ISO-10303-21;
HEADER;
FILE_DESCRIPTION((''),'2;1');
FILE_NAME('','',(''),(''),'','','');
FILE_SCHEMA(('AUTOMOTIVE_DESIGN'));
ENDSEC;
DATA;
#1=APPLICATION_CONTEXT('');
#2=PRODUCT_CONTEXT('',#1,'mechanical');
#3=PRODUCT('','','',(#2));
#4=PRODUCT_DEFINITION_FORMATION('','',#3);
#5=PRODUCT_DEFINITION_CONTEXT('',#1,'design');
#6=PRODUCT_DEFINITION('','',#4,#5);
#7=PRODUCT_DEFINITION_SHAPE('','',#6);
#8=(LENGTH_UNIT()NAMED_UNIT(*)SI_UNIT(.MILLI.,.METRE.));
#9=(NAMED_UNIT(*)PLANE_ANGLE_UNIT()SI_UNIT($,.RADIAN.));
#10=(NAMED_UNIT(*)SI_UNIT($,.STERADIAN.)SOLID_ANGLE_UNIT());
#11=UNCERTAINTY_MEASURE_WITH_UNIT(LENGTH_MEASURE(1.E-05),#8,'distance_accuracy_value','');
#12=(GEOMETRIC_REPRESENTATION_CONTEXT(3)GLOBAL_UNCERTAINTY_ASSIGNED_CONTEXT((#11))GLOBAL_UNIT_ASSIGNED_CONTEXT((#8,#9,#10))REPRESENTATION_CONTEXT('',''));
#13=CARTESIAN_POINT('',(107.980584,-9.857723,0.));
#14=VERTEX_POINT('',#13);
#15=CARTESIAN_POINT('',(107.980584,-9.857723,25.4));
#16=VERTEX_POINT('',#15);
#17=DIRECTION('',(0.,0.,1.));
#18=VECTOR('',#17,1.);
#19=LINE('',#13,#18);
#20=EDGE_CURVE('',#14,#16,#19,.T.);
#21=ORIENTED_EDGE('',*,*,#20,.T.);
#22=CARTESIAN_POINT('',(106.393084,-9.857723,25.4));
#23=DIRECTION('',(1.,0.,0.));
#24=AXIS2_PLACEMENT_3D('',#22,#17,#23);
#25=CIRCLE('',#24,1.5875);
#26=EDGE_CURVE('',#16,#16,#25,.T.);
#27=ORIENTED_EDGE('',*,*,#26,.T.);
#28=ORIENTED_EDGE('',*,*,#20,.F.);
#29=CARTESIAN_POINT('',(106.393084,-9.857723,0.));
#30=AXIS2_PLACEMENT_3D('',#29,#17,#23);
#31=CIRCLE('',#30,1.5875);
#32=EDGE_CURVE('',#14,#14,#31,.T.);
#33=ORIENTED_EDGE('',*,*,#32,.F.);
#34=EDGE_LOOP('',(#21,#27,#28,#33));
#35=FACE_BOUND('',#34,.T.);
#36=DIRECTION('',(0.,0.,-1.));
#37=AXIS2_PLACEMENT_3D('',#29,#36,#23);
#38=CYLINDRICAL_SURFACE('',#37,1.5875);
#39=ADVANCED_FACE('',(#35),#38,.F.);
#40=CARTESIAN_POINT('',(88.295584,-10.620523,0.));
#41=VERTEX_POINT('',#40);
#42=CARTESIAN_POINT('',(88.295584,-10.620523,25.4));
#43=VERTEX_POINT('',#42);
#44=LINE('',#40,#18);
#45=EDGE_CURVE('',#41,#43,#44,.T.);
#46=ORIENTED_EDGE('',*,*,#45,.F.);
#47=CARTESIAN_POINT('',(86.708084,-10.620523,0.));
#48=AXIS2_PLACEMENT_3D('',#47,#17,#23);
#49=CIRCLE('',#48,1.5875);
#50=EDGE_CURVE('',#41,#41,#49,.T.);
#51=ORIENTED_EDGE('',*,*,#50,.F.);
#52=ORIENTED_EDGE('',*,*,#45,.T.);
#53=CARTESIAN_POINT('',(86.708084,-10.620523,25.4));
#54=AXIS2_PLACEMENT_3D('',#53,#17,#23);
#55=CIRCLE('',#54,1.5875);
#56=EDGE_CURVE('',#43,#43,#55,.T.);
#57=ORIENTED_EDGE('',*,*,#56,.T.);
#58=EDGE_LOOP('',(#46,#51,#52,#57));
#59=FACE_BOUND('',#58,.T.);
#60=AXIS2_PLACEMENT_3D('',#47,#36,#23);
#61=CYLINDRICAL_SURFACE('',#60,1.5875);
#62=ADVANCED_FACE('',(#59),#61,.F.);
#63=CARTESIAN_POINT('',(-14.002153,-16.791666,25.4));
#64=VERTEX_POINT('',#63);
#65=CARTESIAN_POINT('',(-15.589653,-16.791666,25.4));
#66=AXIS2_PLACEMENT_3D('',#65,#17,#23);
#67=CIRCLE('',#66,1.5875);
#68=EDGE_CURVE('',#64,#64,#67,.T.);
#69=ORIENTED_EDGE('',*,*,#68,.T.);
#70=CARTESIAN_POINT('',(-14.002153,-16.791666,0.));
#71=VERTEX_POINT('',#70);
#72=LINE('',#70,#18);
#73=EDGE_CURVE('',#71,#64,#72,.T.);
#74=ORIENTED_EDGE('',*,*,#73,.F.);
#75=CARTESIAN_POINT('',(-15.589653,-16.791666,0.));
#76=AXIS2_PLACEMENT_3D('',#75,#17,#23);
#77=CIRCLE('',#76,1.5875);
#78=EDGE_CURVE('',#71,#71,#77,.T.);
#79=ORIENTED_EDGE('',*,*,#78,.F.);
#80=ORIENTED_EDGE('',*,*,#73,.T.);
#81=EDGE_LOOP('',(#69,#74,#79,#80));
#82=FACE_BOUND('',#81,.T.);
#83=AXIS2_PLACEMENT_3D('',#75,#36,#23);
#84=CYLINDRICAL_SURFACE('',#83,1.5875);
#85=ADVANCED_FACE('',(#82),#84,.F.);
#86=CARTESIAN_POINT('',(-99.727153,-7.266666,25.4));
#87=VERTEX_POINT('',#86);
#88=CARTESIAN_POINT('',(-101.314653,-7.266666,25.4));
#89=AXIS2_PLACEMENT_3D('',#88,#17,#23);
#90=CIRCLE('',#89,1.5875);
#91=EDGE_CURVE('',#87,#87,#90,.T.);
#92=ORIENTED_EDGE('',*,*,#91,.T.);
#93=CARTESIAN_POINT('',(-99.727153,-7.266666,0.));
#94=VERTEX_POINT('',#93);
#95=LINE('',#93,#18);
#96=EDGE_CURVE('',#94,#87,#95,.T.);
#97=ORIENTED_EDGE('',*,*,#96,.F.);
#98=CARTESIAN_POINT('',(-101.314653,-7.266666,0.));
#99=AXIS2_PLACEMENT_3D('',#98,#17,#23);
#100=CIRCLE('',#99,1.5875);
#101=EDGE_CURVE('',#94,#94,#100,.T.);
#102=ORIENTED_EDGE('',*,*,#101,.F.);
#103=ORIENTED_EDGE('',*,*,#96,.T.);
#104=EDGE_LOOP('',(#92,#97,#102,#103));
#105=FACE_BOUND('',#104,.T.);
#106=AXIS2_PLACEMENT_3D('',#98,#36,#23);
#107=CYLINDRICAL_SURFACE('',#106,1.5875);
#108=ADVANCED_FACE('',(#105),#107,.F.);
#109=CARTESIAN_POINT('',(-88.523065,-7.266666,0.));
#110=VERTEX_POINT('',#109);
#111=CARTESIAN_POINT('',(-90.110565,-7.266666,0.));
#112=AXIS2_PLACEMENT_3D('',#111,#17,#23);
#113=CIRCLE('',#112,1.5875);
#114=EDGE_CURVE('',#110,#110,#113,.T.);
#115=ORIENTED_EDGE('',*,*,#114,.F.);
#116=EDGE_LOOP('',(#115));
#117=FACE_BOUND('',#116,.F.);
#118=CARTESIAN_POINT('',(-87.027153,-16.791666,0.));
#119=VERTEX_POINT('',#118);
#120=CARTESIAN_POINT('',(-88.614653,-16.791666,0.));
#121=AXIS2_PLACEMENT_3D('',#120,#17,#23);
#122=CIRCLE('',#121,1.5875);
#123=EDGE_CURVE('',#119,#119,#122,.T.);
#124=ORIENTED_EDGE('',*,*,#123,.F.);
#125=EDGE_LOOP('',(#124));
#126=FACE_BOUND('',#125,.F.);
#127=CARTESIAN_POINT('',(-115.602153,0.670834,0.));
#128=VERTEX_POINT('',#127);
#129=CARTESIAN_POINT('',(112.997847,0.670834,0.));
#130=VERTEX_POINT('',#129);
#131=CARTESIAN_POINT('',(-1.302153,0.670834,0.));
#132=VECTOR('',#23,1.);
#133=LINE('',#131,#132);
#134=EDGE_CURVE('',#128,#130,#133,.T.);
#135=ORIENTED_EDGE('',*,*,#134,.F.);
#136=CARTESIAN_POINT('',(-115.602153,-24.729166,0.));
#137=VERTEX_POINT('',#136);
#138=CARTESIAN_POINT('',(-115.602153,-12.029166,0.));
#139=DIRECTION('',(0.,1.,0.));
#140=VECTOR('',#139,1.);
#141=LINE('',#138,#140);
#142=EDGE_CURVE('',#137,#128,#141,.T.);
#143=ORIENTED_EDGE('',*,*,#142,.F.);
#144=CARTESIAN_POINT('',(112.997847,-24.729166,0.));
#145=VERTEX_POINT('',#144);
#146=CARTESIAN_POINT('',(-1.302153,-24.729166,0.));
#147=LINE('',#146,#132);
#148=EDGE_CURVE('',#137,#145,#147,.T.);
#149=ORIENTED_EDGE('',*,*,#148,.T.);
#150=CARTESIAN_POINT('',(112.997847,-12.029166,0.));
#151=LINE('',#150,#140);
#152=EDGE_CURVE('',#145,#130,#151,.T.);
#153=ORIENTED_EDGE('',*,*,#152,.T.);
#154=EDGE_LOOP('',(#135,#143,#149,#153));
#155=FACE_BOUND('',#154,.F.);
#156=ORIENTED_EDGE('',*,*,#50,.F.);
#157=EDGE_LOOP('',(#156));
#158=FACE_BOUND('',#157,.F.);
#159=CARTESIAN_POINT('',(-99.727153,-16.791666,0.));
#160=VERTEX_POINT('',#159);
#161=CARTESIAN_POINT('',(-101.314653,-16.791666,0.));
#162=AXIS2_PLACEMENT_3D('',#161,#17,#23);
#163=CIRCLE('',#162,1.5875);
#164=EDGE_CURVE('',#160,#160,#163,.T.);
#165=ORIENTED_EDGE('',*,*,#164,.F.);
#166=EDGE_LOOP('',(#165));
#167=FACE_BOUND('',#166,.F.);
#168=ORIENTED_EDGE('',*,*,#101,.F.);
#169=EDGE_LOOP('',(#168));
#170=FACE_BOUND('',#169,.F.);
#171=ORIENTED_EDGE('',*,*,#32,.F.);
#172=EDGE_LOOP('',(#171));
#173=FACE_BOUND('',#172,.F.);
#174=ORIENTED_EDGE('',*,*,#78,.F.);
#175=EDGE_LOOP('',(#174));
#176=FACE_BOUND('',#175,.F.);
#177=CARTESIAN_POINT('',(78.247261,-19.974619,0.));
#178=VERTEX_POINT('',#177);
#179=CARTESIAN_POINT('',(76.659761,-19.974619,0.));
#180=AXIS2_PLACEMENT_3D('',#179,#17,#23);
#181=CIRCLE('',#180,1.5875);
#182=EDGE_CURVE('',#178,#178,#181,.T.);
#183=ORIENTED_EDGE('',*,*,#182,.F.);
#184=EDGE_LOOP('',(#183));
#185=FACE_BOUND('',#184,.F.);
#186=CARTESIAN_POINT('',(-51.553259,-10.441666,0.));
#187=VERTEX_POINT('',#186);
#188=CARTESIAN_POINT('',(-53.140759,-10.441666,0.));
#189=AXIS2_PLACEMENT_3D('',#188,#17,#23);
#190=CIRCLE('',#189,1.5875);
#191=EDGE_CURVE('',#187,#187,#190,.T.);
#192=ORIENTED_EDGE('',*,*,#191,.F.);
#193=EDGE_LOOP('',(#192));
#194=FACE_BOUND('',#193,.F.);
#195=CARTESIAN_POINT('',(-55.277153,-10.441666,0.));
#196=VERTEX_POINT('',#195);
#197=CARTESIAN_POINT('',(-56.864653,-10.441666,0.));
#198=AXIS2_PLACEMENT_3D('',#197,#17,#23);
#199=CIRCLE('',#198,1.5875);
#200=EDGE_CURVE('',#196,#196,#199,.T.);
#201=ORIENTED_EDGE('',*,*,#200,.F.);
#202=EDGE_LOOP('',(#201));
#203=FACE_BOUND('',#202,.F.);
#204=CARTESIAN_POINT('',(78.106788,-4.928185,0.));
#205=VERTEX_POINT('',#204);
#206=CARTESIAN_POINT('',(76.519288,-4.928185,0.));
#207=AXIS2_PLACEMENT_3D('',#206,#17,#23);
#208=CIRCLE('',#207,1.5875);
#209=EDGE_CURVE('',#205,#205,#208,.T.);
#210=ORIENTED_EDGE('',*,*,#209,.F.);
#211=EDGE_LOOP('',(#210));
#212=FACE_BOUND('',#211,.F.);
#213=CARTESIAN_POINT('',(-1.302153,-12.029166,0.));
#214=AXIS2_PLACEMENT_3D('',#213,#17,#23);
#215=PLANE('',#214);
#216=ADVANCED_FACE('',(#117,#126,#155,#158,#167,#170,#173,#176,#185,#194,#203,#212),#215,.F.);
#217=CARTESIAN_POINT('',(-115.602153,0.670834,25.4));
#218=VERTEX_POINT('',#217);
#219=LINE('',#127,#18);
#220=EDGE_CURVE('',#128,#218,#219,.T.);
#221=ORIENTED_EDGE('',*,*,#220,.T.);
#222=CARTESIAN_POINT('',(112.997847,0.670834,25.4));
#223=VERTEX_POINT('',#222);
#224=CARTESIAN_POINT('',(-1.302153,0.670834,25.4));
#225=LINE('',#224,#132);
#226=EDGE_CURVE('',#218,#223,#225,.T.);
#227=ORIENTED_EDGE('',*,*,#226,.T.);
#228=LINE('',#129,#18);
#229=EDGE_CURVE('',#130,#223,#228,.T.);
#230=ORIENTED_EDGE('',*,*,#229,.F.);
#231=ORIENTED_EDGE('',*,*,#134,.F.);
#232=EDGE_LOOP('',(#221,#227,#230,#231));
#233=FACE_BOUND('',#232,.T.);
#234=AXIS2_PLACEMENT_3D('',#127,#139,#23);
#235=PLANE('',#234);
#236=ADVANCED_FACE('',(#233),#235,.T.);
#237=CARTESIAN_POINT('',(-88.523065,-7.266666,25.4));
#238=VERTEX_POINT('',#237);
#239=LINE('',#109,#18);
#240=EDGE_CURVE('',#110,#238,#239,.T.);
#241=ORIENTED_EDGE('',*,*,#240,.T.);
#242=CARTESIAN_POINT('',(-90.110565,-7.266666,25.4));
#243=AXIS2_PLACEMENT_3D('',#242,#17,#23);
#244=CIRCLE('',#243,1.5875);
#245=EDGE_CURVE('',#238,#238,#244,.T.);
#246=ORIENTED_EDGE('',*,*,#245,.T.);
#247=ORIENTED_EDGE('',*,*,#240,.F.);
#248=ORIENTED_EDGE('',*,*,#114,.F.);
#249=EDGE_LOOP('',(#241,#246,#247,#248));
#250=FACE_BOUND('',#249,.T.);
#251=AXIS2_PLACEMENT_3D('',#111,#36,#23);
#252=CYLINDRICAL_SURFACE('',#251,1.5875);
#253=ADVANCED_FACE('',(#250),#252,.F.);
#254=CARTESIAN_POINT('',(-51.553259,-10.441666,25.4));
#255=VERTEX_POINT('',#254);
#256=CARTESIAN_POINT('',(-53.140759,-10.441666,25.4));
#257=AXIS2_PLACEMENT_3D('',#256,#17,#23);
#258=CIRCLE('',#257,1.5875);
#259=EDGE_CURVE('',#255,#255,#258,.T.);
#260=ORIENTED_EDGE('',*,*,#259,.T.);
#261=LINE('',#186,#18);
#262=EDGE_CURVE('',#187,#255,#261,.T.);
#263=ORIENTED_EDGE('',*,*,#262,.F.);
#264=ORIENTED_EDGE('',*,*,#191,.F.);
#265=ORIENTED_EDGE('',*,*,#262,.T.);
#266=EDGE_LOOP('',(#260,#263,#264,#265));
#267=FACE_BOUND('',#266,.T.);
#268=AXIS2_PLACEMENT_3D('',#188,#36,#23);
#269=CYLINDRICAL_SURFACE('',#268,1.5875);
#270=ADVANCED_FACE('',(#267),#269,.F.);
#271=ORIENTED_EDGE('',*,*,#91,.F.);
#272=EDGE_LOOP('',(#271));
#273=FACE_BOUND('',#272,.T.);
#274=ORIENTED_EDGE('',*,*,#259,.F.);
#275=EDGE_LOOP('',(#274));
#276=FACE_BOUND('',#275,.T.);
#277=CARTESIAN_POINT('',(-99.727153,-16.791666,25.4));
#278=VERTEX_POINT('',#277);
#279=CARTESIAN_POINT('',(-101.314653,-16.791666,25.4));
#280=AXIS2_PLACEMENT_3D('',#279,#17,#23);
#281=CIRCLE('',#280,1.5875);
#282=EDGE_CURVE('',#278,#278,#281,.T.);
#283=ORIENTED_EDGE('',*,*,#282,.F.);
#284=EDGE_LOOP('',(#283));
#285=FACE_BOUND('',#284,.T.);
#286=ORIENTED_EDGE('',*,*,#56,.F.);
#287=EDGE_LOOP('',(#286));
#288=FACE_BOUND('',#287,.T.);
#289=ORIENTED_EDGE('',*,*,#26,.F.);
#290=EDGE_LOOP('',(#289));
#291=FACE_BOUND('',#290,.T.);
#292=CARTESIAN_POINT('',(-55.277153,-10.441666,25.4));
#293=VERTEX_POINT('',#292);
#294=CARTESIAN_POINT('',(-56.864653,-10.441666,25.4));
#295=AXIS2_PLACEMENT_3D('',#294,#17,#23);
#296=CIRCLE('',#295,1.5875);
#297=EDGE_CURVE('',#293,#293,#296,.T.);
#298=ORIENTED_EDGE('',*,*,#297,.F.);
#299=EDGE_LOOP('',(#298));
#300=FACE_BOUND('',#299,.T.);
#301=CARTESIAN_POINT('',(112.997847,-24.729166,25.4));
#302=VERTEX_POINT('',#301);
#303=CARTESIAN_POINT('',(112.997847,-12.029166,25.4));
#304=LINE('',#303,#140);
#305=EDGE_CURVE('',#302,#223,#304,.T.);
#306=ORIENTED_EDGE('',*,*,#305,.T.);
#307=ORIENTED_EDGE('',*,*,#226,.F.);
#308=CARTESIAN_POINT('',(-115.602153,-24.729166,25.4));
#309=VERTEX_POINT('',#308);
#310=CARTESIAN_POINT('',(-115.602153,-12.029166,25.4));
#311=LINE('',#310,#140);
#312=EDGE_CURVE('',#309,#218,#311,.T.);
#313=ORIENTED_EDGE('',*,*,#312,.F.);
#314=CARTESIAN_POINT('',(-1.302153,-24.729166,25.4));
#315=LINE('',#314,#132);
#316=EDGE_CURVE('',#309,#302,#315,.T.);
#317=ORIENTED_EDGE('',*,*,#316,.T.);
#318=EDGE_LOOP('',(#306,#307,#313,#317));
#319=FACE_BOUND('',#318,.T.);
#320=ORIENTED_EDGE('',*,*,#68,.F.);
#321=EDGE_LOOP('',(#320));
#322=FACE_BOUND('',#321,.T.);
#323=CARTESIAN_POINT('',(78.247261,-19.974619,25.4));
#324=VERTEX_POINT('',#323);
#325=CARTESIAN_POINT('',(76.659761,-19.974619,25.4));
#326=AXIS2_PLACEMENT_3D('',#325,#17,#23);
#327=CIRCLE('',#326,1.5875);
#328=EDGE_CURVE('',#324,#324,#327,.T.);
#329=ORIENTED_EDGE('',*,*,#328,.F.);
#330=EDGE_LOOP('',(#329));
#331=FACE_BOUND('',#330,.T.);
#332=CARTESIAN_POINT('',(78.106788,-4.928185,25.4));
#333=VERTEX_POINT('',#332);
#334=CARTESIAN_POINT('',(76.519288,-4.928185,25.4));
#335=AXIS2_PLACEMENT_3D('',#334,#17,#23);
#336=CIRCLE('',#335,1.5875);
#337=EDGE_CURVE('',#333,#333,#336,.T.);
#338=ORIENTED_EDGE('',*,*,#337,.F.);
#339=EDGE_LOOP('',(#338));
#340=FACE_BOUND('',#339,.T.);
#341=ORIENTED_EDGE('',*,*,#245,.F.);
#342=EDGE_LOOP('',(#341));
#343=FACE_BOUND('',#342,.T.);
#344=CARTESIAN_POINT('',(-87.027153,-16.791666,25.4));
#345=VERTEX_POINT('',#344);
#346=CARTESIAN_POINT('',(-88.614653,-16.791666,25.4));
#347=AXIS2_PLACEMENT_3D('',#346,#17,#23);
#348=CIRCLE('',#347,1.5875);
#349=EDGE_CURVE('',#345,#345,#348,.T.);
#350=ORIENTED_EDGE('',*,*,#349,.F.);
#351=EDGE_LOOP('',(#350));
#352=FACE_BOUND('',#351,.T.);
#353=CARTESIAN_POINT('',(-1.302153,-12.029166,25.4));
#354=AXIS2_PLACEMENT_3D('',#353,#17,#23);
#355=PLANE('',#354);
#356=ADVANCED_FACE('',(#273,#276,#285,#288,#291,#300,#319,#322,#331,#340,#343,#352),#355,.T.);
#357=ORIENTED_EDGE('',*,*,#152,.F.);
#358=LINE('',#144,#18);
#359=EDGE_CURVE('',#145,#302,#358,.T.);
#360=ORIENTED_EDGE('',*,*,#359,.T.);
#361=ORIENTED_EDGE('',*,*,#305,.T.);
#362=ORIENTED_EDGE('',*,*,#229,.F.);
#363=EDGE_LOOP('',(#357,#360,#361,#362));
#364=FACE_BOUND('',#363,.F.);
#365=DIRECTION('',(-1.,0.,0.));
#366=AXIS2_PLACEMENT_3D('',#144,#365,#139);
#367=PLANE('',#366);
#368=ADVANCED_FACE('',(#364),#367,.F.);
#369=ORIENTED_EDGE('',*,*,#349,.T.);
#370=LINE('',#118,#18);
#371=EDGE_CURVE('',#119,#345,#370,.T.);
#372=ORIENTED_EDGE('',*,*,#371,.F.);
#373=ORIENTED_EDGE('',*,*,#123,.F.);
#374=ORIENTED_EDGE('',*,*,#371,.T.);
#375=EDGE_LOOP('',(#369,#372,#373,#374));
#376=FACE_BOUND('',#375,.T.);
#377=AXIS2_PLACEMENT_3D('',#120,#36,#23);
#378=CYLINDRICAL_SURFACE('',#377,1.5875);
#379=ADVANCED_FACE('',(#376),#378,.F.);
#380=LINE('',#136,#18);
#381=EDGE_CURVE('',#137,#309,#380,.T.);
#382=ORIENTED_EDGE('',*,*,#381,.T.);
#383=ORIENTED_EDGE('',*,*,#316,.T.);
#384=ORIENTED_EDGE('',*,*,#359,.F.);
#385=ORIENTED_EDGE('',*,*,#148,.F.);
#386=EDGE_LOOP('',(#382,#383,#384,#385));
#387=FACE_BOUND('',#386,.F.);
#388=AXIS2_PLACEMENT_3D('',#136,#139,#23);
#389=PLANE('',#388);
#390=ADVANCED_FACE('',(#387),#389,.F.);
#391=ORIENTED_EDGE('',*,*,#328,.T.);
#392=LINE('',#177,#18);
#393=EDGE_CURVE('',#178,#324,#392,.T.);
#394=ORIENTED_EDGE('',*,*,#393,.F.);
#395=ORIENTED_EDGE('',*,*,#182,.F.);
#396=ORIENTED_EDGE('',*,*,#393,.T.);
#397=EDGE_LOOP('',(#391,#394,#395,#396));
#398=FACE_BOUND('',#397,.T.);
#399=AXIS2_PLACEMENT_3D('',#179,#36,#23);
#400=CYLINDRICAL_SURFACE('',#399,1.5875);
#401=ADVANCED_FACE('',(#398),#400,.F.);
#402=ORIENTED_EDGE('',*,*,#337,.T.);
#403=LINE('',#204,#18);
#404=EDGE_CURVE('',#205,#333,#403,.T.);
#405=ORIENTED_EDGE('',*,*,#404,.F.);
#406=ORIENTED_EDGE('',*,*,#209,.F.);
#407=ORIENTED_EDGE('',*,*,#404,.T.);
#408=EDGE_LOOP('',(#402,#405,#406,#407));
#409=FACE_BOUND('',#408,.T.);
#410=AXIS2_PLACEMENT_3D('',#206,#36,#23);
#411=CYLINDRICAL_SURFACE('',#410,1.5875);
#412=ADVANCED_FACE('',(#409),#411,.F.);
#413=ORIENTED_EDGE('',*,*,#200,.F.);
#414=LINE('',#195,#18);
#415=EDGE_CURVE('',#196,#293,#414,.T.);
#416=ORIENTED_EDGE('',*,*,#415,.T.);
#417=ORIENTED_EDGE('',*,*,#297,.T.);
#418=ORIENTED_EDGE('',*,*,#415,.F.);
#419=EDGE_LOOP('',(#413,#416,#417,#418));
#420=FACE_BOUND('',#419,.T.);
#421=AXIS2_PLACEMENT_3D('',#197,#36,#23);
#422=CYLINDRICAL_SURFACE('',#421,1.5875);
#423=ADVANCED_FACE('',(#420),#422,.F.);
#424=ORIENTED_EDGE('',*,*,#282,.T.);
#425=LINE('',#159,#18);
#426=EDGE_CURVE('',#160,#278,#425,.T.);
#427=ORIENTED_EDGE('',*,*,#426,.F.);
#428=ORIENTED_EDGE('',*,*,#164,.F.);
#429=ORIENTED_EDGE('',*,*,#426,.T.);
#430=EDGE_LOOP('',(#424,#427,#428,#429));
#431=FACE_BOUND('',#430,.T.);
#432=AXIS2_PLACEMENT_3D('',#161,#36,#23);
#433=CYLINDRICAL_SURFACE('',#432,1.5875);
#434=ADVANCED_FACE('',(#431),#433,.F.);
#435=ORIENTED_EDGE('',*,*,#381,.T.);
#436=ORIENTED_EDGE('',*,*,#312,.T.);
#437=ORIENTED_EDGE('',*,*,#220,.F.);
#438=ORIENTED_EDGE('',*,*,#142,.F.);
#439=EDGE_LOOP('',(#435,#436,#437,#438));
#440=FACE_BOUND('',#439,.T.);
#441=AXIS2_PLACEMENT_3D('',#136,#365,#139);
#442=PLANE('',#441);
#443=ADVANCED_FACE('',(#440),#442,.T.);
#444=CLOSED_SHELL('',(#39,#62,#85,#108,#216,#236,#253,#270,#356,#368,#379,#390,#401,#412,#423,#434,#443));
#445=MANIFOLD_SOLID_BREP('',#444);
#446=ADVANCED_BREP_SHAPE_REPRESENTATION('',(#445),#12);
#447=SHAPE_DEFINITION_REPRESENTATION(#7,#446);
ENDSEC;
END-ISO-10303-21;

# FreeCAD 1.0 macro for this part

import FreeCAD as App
import Part
import Sketcher

V = App.Vector
Q = App.Units.Quantity


def add_polygon(sketch, points):
    """Adds a closed chain of lines whose ends are joined by coincident constraints."""
    first, n = sketch.GeometryCount, len(points)
    for a, b in zip(points, points[1:] + points[:1]):
        sketch.addGeometry(Part.LineSegment(App.Vector(*a, 0), App.Vector(*b, 0)), False)
    for i in range(n):
        sketch.addConstraint(Sketcher.Constraint("Coincident", first + i, 2, first + (i + 1) % n, 1))

doc = App.newDocument("Part")
body = doc.addObject("PartDesign::Body", "Body")

sketch1 = body.newObject("Sketcher::SketchObject", "Sketch")
sketch1.AttachmentSupport = (doc.getObject("XY_Plane"), [""])
sketch1.MapMode = "FlatFace"
add_polygon(sketch1, [(-115.6, 0.7), (-115.6, -24.7), (113, -24.7), (113, 0.7)])
sketch1.addGeometry(Part.Circle(V(-101.3, -16.8, 0), V(0, 0, 1), 1.6), False)
sketch1.addGeometry(Part.Circle(V(-88.6, -16.8, 0), V(0, 0, 1), 1.6), False)
sketch1.addGeometry(Part.Circle(V(-15.6, -16.8, 0), V(0, 0, 1), 1.6), False)
sketch1.addGeometry(Part.Circle(V(76.7, -20, 0), V(0, 0, 1), 1.6), False)
sketch1.addGeometry(Part.Circle(V(-56.9, -10.4, 0), V(0, 0, 1), 1.6), False)
sketch1.addGeometry(Part.Circle(V(-53.1, -10.4, 0), V(0, 0, 1), 1.6), False)
sketch1.addGeometry(Part.Circle(V(-101.3, -7.3, 0), V(0, 0, 1), 1.6), False)
sketch1.addGeometry(Part.Circle(V(-90.1, -7.3, 0), V(0, 0, 1), 1.6), False)
sketch1.addGeometry(Part.Circle(V(86.7, -10.6, 0), V(0, 0, 1), 1.6), False)
sketch1.addGeometry(Part.Circle(V(106.4, -9.9, 0), V(0, 0, 1), 1.6), False)
sketch1.addGeometry(Part.Circle(V(76.5, -4.9, 0), V(0, 0, 1), 1.6), False)
sketch1.addConstraint([
    Sketcher.Constraint("Vertical", 0),
    Sketcher.Constraint("Horizontal", 1),
    Sketcher.Constraint("Vertical", 2),
    Sketcher.Constraint("Horizontal", 3),
    Sketcher.Constraint("Equal", 4, 5),
    Sketcher.Constraint("Equal", 5, 6),
    Sketcher.Constraint("Equal", 6, 7),
    Sketcher.Constraint("Equal", 7, 8),
    Sketcher.Constraint("Equal", 8, 9),
    Sketcher.Constraint("Equal", 9, 10),
    Sketcher.Constraint("Equal", 10, 11),
    Sketcher.Constraint("Equal", 11, 12),
    Sketcher.Constraint("Equal", 12, 13),
    Sketcher.Constraint("Equal", 13, 14),
    Sketcher.Constraint("Horizontal", 4, 3, 5, 3),
    Sketcher.Constraint("Horizontal", 5, 3, 6, 3),
    Sketcher.Constraint("Horizontal", 8, 3, 9, 3),
    Sketcher.Constraint("Horizontal", 10, 3, 11, 3),
    Sketcher.Constraint("Vertical", 4, 3, 10, 3),
    Sketcher.Constraint("DistanceX", 1, 1, 1, 2, Q("9 in")),
    Sketcher.Constraint("DistanceY", 0, 2, 0, 1, Q("1 in")),
    Sketcher.Constraint("Diameter", 4, Q("0.125 in")),
    Sketcher.Constraint("DistanceX", 4, 3, 5, 3, Q("0.5 in")),
    Sketcher.Constraint("DistanceX", 5, 3, 8, 3, Q("1.25 in")),
    Sketcher.Constraint("DistanceY", 5, 3, 8, 3, Q("0.25 in")),
    Sketcher.Constraint("DistanceX", 5, 3, 6, 3, Q("2.875 in")),
    Sketcher.Constraint("DistanceY", 4, 3, 10, 3, Q("0.375 in")),
    Sketcher.Constraint("DistanceX", 12, 3, 13, 3, Q("0.775 in")),
    Sketcher.Constraint("DistanceX", 0, 2, 4, 3, Q("0.5625 in")),
    Sketcher.Constraint("DistanceY", 0, 2, 4, 3, Q("0.3125 in")),
    Sketcher.Constraint("DistanceY", 12, 3, 13, 3, 0.7628),
    Sketcher.Constraint("DistanceX", -1, 1, 7, 3, 76.659761),
    Sketcher.Constraint("DistanceY", 7, 3, -1, 1, 19.974619),
    Sketcher.Constraint("DistanceX", 9, 3, -1, 1, 53.140759),
    Sketcher.Constraint("DistanceX", -1, 1, 14, 3, 76.519288),
    Sketcher.Constraint("DistanceX", 11, 3, 5, 3, 1.495912),
    Sketcher.Constraint("DistanceY", 12, 3, 14, 3, 5.692338),
    Sketcher.Constraint("DistanceX", 6, 3, 14, 3, 92.108941),
    Sketcher.Constraint("DistanceY", 6, 3, 14, 3, 11.863481),
    Sketcher.Constraint("DistanceY", 4, 3, -1, 1, 16.791666),
    Sketcher.Constraint("DistanceX", -1, 1, 12, 3, 86.708084),
])
pad1 = body.newObject("PartDesign::Pad", "Pad")
pad1.Profile = sketch1
pad1.Length = Q("1 in")

doc.recompute()
